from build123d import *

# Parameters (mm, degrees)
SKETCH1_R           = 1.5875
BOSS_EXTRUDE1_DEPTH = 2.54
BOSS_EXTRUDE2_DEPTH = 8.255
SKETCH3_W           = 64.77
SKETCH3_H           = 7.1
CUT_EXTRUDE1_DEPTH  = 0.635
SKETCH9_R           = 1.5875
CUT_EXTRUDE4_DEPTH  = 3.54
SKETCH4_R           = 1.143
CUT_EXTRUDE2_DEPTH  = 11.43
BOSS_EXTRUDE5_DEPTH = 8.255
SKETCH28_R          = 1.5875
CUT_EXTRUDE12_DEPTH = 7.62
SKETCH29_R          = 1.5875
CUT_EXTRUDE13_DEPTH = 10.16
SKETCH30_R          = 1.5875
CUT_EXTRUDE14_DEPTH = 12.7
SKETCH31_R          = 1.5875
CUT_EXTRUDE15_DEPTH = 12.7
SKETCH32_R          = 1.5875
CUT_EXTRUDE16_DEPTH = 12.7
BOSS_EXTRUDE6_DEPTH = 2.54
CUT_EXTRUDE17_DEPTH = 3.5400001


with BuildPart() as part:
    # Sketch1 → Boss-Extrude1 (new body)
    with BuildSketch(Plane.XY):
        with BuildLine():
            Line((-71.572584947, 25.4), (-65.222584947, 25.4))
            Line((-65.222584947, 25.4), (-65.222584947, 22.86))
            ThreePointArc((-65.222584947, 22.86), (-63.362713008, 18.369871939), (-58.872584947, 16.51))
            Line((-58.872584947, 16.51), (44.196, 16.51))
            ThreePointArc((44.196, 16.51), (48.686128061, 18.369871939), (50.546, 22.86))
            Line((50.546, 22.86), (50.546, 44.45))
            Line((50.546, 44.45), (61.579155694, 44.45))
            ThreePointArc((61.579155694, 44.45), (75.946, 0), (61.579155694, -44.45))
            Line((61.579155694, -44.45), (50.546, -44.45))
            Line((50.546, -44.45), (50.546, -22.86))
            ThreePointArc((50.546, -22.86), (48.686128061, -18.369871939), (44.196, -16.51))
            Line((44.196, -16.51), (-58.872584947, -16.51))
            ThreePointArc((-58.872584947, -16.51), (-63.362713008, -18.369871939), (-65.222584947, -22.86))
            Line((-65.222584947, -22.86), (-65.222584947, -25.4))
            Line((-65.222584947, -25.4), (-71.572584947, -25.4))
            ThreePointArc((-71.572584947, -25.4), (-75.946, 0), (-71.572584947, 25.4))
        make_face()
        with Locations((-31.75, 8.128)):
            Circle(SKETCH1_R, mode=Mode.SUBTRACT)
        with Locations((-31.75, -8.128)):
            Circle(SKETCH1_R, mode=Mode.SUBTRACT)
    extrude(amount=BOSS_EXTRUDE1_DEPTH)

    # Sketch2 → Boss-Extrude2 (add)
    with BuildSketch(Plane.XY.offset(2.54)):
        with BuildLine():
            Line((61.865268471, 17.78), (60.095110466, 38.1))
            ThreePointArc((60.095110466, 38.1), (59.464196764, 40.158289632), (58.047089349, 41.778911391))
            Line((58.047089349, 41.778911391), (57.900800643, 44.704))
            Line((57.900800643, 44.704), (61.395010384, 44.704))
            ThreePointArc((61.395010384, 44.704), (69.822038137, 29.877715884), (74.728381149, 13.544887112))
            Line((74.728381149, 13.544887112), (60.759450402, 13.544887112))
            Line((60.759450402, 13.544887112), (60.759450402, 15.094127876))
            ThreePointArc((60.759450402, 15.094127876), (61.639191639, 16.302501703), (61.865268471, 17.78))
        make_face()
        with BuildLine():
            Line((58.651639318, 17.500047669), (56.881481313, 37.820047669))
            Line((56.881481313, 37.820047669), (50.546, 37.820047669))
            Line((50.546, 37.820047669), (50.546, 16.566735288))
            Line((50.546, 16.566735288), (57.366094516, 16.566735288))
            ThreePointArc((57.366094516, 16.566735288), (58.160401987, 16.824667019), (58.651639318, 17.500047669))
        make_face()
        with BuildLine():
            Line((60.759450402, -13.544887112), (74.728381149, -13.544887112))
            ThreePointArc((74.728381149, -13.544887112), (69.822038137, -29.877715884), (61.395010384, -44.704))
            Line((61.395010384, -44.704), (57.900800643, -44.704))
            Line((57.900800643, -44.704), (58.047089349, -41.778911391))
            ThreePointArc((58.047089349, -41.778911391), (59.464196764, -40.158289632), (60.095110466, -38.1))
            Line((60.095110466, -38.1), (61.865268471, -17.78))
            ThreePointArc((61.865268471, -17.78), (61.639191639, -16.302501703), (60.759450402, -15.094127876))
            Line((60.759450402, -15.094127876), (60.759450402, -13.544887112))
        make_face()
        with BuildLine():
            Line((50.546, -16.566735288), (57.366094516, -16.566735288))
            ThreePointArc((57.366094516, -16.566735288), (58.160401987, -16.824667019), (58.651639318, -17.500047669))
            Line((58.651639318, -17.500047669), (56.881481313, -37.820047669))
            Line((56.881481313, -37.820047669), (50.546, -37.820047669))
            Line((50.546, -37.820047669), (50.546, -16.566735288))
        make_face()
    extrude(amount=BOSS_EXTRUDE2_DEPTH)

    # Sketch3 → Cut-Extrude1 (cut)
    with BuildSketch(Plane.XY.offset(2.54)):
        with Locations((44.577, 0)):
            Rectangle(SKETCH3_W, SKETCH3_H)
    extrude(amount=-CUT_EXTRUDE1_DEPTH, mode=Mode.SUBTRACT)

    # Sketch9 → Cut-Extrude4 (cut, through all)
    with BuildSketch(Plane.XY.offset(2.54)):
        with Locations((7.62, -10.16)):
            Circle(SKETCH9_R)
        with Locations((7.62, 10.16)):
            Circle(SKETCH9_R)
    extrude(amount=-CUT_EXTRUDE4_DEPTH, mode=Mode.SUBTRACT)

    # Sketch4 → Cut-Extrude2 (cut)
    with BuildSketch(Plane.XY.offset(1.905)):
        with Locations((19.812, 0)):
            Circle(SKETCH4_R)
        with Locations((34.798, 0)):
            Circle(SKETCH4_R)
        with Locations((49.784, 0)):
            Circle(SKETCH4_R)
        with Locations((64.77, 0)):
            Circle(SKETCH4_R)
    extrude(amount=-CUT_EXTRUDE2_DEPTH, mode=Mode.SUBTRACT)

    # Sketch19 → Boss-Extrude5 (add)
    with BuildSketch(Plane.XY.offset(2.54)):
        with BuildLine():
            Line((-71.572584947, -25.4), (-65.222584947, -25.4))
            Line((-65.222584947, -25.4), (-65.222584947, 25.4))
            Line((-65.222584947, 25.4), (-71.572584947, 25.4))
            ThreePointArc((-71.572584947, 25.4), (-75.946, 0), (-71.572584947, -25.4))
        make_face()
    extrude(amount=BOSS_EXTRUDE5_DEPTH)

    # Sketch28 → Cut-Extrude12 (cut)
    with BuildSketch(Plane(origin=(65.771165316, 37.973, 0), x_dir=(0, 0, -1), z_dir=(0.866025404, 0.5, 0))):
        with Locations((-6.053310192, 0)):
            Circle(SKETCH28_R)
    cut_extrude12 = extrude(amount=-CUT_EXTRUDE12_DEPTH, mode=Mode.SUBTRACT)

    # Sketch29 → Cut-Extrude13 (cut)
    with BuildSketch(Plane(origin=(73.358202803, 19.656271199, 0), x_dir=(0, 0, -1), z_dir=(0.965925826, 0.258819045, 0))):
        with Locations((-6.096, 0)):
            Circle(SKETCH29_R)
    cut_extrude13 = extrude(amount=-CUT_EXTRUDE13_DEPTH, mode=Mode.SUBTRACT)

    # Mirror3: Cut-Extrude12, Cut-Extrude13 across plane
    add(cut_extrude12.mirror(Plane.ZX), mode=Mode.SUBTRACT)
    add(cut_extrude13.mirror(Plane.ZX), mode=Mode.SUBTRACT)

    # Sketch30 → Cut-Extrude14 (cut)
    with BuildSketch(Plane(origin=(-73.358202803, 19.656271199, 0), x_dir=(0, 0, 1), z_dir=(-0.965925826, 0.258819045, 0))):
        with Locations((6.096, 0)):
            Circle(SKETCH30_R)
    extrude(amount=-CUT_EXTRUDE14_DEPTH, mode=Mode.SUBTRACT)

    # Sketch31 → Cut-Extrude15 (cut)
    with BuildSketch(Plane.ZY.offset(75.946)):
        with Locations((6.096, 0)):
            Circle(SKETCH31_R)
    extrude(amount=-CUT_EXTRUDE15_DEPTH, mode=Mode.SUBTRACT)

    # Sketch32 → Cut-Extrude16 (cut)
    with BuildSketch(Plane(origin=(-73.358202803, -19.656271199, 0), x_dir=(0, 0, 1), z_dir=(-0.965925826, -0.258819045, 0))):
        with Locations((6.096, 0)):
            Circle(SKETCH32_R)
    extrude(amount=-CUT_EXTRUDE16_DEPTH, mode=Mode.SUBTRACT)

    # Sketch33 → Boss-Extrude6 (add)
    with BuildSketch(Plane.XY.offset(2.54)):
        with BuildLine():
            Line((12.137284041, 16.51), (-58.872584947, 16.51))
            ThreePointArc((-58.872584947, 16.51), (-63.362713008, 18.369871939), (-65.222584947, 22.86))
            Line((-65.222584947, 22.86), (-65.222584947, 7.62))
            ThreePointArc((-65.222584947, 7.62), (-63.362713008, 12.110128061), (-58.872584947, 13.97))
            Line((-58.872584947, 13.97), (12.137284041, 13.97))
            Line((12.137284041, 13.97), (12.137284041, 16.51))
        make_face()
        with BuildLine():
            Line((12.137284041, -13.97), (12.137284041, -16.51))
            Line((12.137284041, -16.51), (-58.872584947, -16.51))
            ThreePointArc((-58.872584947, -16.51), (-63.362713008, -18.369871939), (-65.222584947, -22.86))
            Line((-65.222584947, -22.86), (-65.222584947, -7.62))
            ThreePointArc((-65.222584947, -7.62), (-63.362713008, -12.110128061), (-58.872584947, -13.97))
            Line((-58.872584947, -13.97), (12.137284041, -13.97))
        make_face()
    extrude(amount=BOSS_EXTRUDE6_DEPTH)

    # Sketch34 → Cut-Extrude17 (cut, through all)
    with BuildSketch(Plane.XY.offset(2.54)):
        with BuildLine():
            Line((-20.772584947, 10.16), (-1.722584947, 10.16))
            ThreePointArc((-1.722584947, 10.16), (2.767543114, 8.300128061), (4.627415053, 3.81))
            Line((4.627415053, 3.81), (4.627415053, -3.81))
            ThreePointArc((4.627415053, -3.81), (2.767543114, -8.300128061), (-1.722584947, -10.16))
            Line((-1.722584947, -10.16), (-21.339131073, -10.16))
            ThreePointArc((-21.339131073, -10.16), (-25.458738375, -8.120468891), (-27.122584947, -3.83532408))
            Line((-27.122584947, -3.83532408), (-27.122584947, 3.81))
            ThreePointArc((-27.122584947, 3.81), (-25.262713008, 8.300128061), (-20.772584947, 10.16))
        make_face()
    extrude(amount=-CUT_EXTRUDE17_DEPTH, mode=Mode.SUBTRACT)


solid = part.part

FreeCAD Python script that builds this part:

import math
import FreeCAD as App
import Part
import Sketcher
Q = App.Units.Quantity

doc = App.newDocument("Part")
body = doc.addObject("PartDesign::Body", "Body")

# Sketch on XY plane
sketch1 = body.newObject("Sketcher::SketchObject", "Sketch")
sketch1.AttachmentSupport = (doc.getObject("XY_Plane"), [""])
sketch1.MapMode = "FlatFace"
sketch1.addGeometry(Part.LineSegment(App.Vector(-65.222585, 25.4, 0), App.Vector(-71.572585, 25.4, 0)), False)
sketch1.addGeometry(Part.ArcOfCircle(Part.Circle(App.Vector(0, 0, 0), App.Vector(0, 0, 1), 75.946), math.radians(160.461016), math.radians(199.538984)), False)
sketch1.addGeometry(Part.LineSegment(App.Vector(-71.572585, -25.4, 0), App.Vector(-65.222585, -25.4, 0)), False)
sketch1.addGeometry(Part.LineSegment(App.Vector(-65.222585, -25.4, 0), App.Vector(-65.222585, -22.86, 0)), False)
sketch1.addGeometry(Part.ArcOfCircle(Part.Circle(App.Vector(-58.872585, -22.86, 0), App.Vector(0, 0, 1), 6.35), math.radians(90), math.radians(180)), False)
sketch1.addGeometry(Part.LineSegment(App.Vector(-58.872585, -16.51, 0), App.Vector(44.196, -16.51, 0)), False)
sketch1.addGeometry(Part.ArcOfCircle(Part.Circle(App.Vector(44.196, -22.86, 0), App.Vector(0, 0, 1), 6.35), math.radians(0), math.radians(90)), False)
sketch1.addGeometry(Part.LineSegment(App.Vector(50.546, -22.86, 0), App.Vector(50.546, -44.45, 0)), False)
sketch1.addGeometry(Part.LineSegment(App.Vector(50.546, -44.45, 0), App.Vector(61.579156, -44.45, 0)), False)
sketch1.addGeometry(Part.ArcOfCircle(Part.Circle(App.Vector(0, 0, 0), App.Vector(0, 0, 1), 75.946), math.radians(-35.823076), math.radians(35.823076)), False)
sketch1.addGeometry(Part.LineSegment(App.Vector(61.579156, 44.45, 0), App.Vector(50.546, 44.45, 0)), False)
sketch1.addGeometry(Part.LineSegment(App.Vector(50.546, 44.45, 0), App.Vector(50.546, 22.86, 0)), False)
sketch1.addGeometry(Part.ArcOfCircle(Part.Circle(App.Vector(44.196, 22.86, 0), App.Vector(0, 0, 1), 6.35), math.radians(-90), math.radians(0)), False)
sketch1.addGeometry(Part.LineSegment(App.Vector(44.196, 16.51, 0), App.Vector(-58.872585, 16.51, 0)), False)
sketch1.addGeometry(Part.ArcOfCircle(Part.Circle(App.Vector(-58.872585, 22.86, 0), App.Vector(0, 0, 1), 6.35), math.radians(180), math.radians(270)), False)
sketch1.addGeometry(Part.LineSegment(App.Vector(-65.222585, 22.86, 0), App.Vector(-65.222585, 25.4, 0)), False)
sketch1.addGeometry(Part.Circle(App.Vector(-31.75, -8.128, 0), App.Vector(0, 0, 1), 1.5875), False)
sketch1.addGeometry(Part.Circle(App.Vector(-31.75, 8.128, 0), App.Vector(0, 0, 1), 1.5875), False)
sketch1.addConstraint(Sketcher.Constraint("Coincident", 0, 2, 1, 1))
sketch1.addConstraint(Sketcher.Constraint("Coincident", 1, 2, 2, 1))
sketch1.addConstraint(Sketcher.Constraint("Coincident", 2, 2, 3, 1))
sketch1.addConstraint(Sketcher.Constraint("Tangent", 3, 2, 4, 2))
sketch1.addConstraint(Sketcher.Constraint("Tangent", 4, 1, 5, 1))
sketch1.addConstraint(Sketcher.Constraint("Tangent", 5, 2, 6, 2))
sketch1.addConstraint(Sketcher.Constraint("Tangent", 6, 1, 7, 1))
sketch1.addConstraint(Sketcher.Constraint("Coincident", 7, 2, 8, 1))
sketch1.addConstraint(Sketcher.Constraint("Coincident", 8, 2, 9, 1))
sketch1.addConstraint(Sketcher.Constraint("Coincident", 9, 2, 10, 1))
sketch1.addConstraint(Sketcher.Constraint("Coincident", 10, 2, 11, 1))
sketch1.addConstraint(Sketcher.Constraint("Tangent", 11, 2, 12, 2))
sketch1.addConstraint(Sketcher.Constraint("Tangent", 12, 1, 13, 1))
sketch1.addConstraint(Sketcher.Constraint("Tangent", 13, 2, 14, 2))
sketch1.addConstraint(Sketcher.Constraint("Tangent", 14, 1, 15, 1))
sketch1.addConstraint(Sketcher.Constraint("Coincident", 15, 2, 0, 1))
sketch1.addConstraint(Sketcher.Constraint("Horizontal", 0))
sketch1.addConstraint(Sketcher.Constraint("Horizontal", 2))
sketch1.addConstraint(Sketcher.Constraint("Vertical", 3))
sketch1.addConstraint(Sketcher.Constraint("Horizontal", 5))
sketch1.addConstraint(Sketcher.Constraint("Vertical", 7))
sketch1.addConstraint(Sketcher.Constraint("Horizontal", 8))
sketch1.addConstraint(Sketcher.Constraint("Horizontal", 10))
sketch1.addConstraint(Sketcher.Constraint("Vertical", 11))
sketch1.addConstraint(Sketcher.Constraint("Horizontal", 13))
sketch1.addConstraint(Sketcher.Constraint("Vertical", 15))
sketch1.addConstraint(Sketcher.Constraint("Coincident", 1, 3, -1, 1))
sketch1.addConstraint(Sketcher.Constraint("Coincident", 9, 3, -1, 1))
sketch1.addConstraint(Sketcher.Constraint("Equal", 4, 6))
sketch1.addConstraint(Sketcher.Constraint("Equal", 1, 9))
sketch1.addConstraint(Sketcher.Constraint("Equal", 6, 12))
sketch1.addConstraint(Sketcher.Constraint("Equal", 12, 14))
sketch1.addConstraint(Sketcher.Constraint("Equal", 16, 17))
sketch1.addConstraint(Sketcher.Constraint("Symmetric", 6, 3, 12, 3, -1))
sketch1.addConstraint(Sketcher.Constraint("Symmetric", 16, 3, 17, 3, -1))
sketch1.addConstraint(Sketcher.Constraint("Symmetric", 2, 2, 15, 2, -1))
sketch1.addConstraint(Sketcher.Constraint("Vertical", 8, 2, 9, 2))
sketch1.addConstraint(Sketcher.Constraint("Radius", 1, Q("2.99 in")))
sketch1.addConstraint(Sketcher.Constraint("Radius", 4, Q("0.25 in")))
sketch1.addConstraint(Sketcher.Constraint("Diameter", 16, Q("0.125 in")))
sketch1.addConstraint(Sketcher.Constraint("DistanceY", 3, 1, 3, 2, Q("0.1 in")))
sketch1.addConstraint(Sketcher.Constraint("DistanceY", -1, 1, 0, 2, Q("1 in")))
sketch1.addConstraint(Sketcher.Constraint("DistanceX", 0, 2, 0, 1, Q("0.25 in")))
sketch1.addConstraint(Sketcher.Constraint("DistanceY", 7, 2, 7, 1, Q("0.85 in")))
sketch1.addConstraint(Sketcher.Constraint("DistanceX", -1, 1, 6, 3, Q("1.74 in")))
sketch1.addConstraint(Sketcher.Constraint("DistanceX", 16, 3, -1, 1, Q("1.25 in")))
sketch1.addConstraint(Sketcher.Constraint("DistanceY", 16, 3, -1, 1, Q("0.32 in")))
pad1 = body.newObject("PartDesign::Pad", "Pad")
pad1.Profile = sketch1
pad1.Length = Q("0.1 in")

# Sketch on XY plane
sketch2 = body.newObject("Sketcher::SketchObject", "Sketch001")
sketch2.AttachmentSupport = (doc.getObject("XY_Plane"), [""])
sketch2.MapMode = "FlatFace"
sketch2.AttachmentOffset = App.Placement(App.Vector(0, 0, 0.1 * 25.4), App.Rotation())
sketch2.addGeometry(Part.LineSegment(App.Vector(60.09511, 38.1, 0), App.Vector(61.865268, 17.78, 0)), False)
sketch2.addGeometry(Part.ArcOfCircle(Part.Circle(App.Vector(58.716749, 17.50572, 0), App.Vector(0, 0, 1), 3.160443), math.radians(-49.734254), math.radians(4.9787)), False)
sketch2.addGeometry(Part.LineSegment(App.Vector(60.75945, 15.094128, 0), App.Vector(60.75945, 13.544887, 0)), False)
sketch2.addGeometry(Part.LineSegment(App.Vector(60.75945, 13.544887, 0), App.Vector(74.728381, 13.544887, 0)), False)
sketch2.addGeometry(Part.ArcOfCircle(Part.Circle(App.Vector(0, 0, 0), App.Vector(0, 0, 1), 75.946), math.radians(10.273604), math.radians(36.059761)), False)
sketch2.addGeometry(Part.LineSegment(App.Vector(61.39501, 44.704, 0), App.Vector(57.900801, 44.704, 0)), False)
sketch2.addGeometry(Part.LineSegment(App.Vector(57.900801, 44.704, 0), App.Vector(58.047089, 41.778911, 0)), False)
sketch2.addGeometry(Part.ArcOfCircle(Part.Circle(App.Vector(54.963878, 37.652997, 0), App.Vector(0, 0, 1), 5.150666), math.radians(4.9787), math.radians(53.229987)), False)
sketch2.addGeometry(Part.LineSegment(App.Vector(58.651639, 17.500048, 0), App.Vector(56.881481, 37.820048, 0)), False)
sketch2.addGeometry(Part.LineSegment(App.Vector(56.881481, 37.820048, 0), App.Vector(50.546, 37.820048, 0)), False)
sketch2.addGeometry(Part.LineSegment(App.Vector(50.546, 37.820048, 0), App.Vector(50.546, 16.566735, 0)), False)
sketch2.addGeometry(Part.LineSegment(App.Vector(50.546, 16.566735, 0), App.Vector(57.366095, 16.566735, 0)), False)
sketch2.addGeometry(Part.ArcOfCircle(Part.Circle(App.Vector(57.366095, 17.918746, 0), App.Vector(0, 0, 1), 1.352011), math.radians(-90), math.radians(-18.040301)), False)
sketch2.addGeometry(Part.LineSegment(App.Vector(74.728381, -13.544887, 0), App.Vector(60.75945, -13.544887, 0)), False)
sketch2.addGeometry(Part.LineSegment(App.Vector(60.75945, -13.544887, 0), App.Vector(60.75945, -15.094128, 0)), False)
sketch2.addGeometry(Part.ArcOfCircle(Part.Circle(App.Vector(58.716749, -17.50572, 0), App.Vector(0, 0, 1), 3.160443), math.radians(-4.9787), math.radians(49.734254)), False)
sketch2.addGeometry(Part.LineSegment(App.Vector(61.865268, -17.78, 0), App.Vector(60.09511, -38.1, 0)), False)
sketch2.addGeometry(Part.ArcOfCircle(Part.Circle(App.Vector(54.963878, -37.652997, 0), App.Vector(0, 0, 1), 5.150666), math.radians(-53.229987), math.radians(-4.9787)), False)
sketch2.addGeometry(Part.LineSegment(App.Vector(58.047089, -41.778911, 0), App.Vector(57.900801, -44.704, 0)), False)
sketch2.addGeometry(Part.LineSegment(App.Vector(57.900801, -44.704, 0), App.Vector(61.39501, -44.704, 0)), False)
sketch2.addGeometry(Part.ArcOfCircle(Part.Circle(App.Vector(0, 0, 0), App.Vector(0, 0, 1), 75.946), math.radians(-36.059761), math.radians(-10.273604)), False)
sketch2.addGeometry(Part.LineSegment(App.Vector(57.366095, -16.566735, 0), App.Vector(50.546, -16.566735, 0)), False)
sketch2.addGeometry(Part.LineSegment(App.Vector(50.546, -16.566735, 0), App.Vector(50.546, -37.820048, 0)), False)
sketch2.addGeometry(Part.LineSegment(App.Vector(50.546, -37.820048, 0), App.Vector(56.881481, -37.820048, 0)), False)
sketch2.addGeometry(Part.LineSegment(App.Vector(56.881481, -37.820048, 0), App.Vector(58.651639, -17.500048, 0)), False)
sketch2.addGeometry(Part.ArcOfCircle(Part.Circle(App.Vector(57.366095, -17.918746, 0), App.Vector(0, 0, 1), 1.352011), math.radians(18.040301), math.radians(90)), False)
sketch2.addConstraint(Sketcher.Constraint("Tangent", 0, 2, 1, 2))
sketch2.addConstraint(Sketcher.Constraint("Coincident", 1, 1, 2, 1))
sketch2.addConstraint(Sketcher.Constraint("Coincident", 2, 2, 3, 1))
sketch2.addConstraint(Sketcher.Constraint("Coincident", 3, 2, 4, 1))
sketch2.addConstraint(Sketcher.Constraint("Coincident", 4, 2, 5, 1))
sketch2.addConstraint(Sketcher.Constraint("Coincident", 5, 2, 6, 1))
sketch2.addConstraint(Sketcher.Constraint("Coincident", 6, 2, 7, 2))
sketch2.addConstraint(Sketcher.Constraint("Tangent", 7, 1, 0, 1))
sketch2.addConstraint(Sketcher.Constraint("Coincident", 8, 2, 9, 1))
sketch2.addConstraint(Sketcher.Constraint("Coincident", 9, 2, 10, 1))
sketch2.addConstraint(Sketcher.Constraint("Coincident", 10, 2, 11, 1))
sketch2.addConstraint(Sketcher.Constraint("Tangent", 11, 2, 12, 1))
sketch2.addConstraint(Sketcher.Constraint("Coincident", 12, 2, 8, 1))
sketch2.addConstraint(Sketcher.Constraint("Coincident", 13, 2, 14, 1))
sketch2.addConstraint(Sketcher.Constraint("Coincident", 14, 2, 15, 2))
sketch2.addConstraint(Sketcher.Constraint("Tangent", 15, 1, 16, 1))
sketch2.addConstraint(Sketcher.Constraint("Tangent", 16, 2, 17, 2))
sketch2.addConstraint(Sketcher.Constraint("Coincident", 17, 1, 18, 1))
sketch2.addConstraint(Sketcher.Constraint("Coincident", 18, 2, 19, 1))
sketch2.addConstraint(Sketcher.Constraint("Coincident", 19, 2, 20, 1))
sketch2.addConstraint(Sketcher.Constraint("Coincident", 20, 2, 13, 1))
sketch2.addConstraint(Sketcher.Constraint("Coincident", 21, 2, 22, 1))
sketch2.addConstraint(Sketcher.Constraint("Coincident", 22, 2, 23, 1))
sketch2.addConstraint(Sketcher.Constraint("Coincident", 23, 2, 24, 1))
sketch2.addConstraint(Sketcher.Constraint("Coincident", 24, 2, 25, 1))
sketch2.addConstraint(Sketcher.Constraint("Tangent", 25, 2, 21, 1))
sketch2.addConstraint(Sketcher.Constraint("Vertical", 2))
sketch2.addConstraint(Sketcher.Constraint("Horizontal", 3))
sketch2.addConstraint(Sketcher.Constraint("Horizontal", 5))
sketch2.addConstraint(Sketcher.Constraint("Horizontal", 9))
sketch2.addConstraint(Sketcher.Constraint("Vertical", 10))
sketch2.addConstraint(Sketcher.Constraint("Horizontal", 11))
sketch2.addConstraint(Sketcher.Constraint("Horizontal", 13))
sketch2.addConstraint(Sketcher.Constraint("Vertical", 14))
sketch2.addConstraint(Sketcher.Constraint("Horizontal", 19))
sketch2.addConstraint(Sketcher.Constraint("Horizontal", 21))
sketch2.addConstraint(Sketcher.Constraint("Vertical", 22))
sketch2.addConstraint(Sketcher.Constraint("Horizontal", 23))
sketch2.addConstraint(Sketcher.Constraint("Coincident", 4, 3, -1, 1))
sketch2.addConstraint(Sketcher.Constraint("Coincident", 20, 3, -1, 1))
sketch2.addConstraint(Sketcher.Constraint("Equal", 1, 15))
sketch2.addConstraint(Sketcher.Constraint("Equal", 7, 17))
sketch2.addConstraint(Sketcher.Constraint("Equal", 4, 20))
sketch2.addConstraint(Sketcher.Constraint("Equal", 12, 25))
sketch2.addConstraint(Sketcher.Constraint("Symmetric", 1, 3, 15, 3, -1))
sketch2.addConstraint(Sketcher.Constraint("Symmetric", 7, 3, 17, 3, -1))
sketch2.addConstraint(Sketcher.Constraint("Symmetric", 12, 3, 25, 3, -1))
sketch2.addConstraint(Sketcher.Constraint("Symmetric", 2, 2, 13, 2, -1))
sketch2.addConstraint(Sketcher.Constraint("Symmetric", 5, 2, 18, 2, -1))
sketch2.addConstraint(Sketcher.Constraint("Symmetric", 9, 2, 22, 2, -1))
sketch2.addConstraint(Sketcher.Constraint("Parallel", 0, 8))
sketch2.addConstraint(Sketcher.Constraint("Parallel", 16, 24))
sketch2.addConstraint(Sketcher.Constraint("Vertical", 6, 2, 17, 1))
sketch2.addConstraint(Sketcher.Constraint("Vertical", 8, 2, 23, 2))
sketch2.addConstraint(Sketcher.Constraint("Equal", 0, 8))
sketch2.addConstraint(Sketcher.Constraint("Radius", 4, Q("2.99 in")))
sketch2.addConstraint(Sketcher.Constraint("DistanceY", -1, 1, 0, 2, Q("0.7 in")))
sketch2.addConstraint(Sketcher.Constraint("DistanceY", -1, 1, 7, 1, Q("1.5 in")))
sketch2.addConstraint(Sketcher.Constraint("DistanceY", -1, 1, 4, 2, Q("1.76 in")))
sketch2.addConstraint(Sketcher.Constraint("DistanceX", -1, 1, 9, 2, Q("1.99 in")))
sketch2.addConstraint(Sketcher.Constraint("Radius", 12, Q("1.352011 mm")))
sketch2.addConstraint(Sketcher.Constraint("Radius", 1, Q("3.160443 mm")))
sketch2.addConstraint(Sketcher.Constraint("Radius", 7, Q("5.150666 mm")))
sketch2.addConstraint(Sketcher.Constraint("DistanceY", 1, 3, 7, 3, Q("0.7931999 in")))
sketch2.addConstraint(Sketcher.Constraint("DistanceX", 3, 1, 3, 2, Q("13.968931 mm")))
sketch2.addConstraint(Sketcher.Constraint("DistanceX", 5, 2, 5, 1, Q("3.49421 mm")))
sketch2.addConstraint(Sketcher.Constraint("DistanceX", 9, 2, 9, 1, Q("6.335481 mm")))
sketch2.addConstraint(Sketcher.Constraint("DistanceY", 2, 2, 2, 1, Q("1.549241 mm")))
sketch2.addConstraint(Sketcher.Constraint("DistanceX", 1, 3, 1, 1, Q("2.042701 mm")))
sketch2.addConstraint(Sketcher.Constraint("DistanceY", 12, 2, 12, 3, Q("0.418699 mm")))
sketch2.addConstraint(Sketcher.Constraint("DistanceX", -1, 1, 6, 2, Q("58.047089 mm")))
sketch2.addConstraint(Sketcher.Constraint("DistanceY", 12, 3, 7, 3, Q("19.734251 mm")))
pad2 = body.newObject("PartDesign::Pad", "Pad001")
pad2.Profile = sketch2
pad2.Length = Q("0.325 in")

# Sketch on XY plane
sketch3 = body.newObject("Sketcher::SketchObject", "Sketch002")
sketch3.AttachmentSupport = (doc.getObject("XY_Plane"), [""])
sketch3.MapMode = "FlatFace"
sketch3.AttachmentOffset = App.Placement(App.Vector(0, 0, 0.1 * 25.4), App.Rotation())
sketch3.addGeometry(Part.LineSegment(App.Vector(12.192, 3.55, 0), App.Vector(12.192, -3.55, 0)), False)
sketch3.addGeometry(Part.LineSegment(App.Vector(12.192, -3.55, 0), App.Vector(76.962, -3.55, 0)), False)
sketch3.addGeometry(Part.LineSegment(App.Vector(76.962, -3.55, 0), App.Vector(76.962, 3.55, 0)), False)
sketch3.addGeometry(Part.LineSegment(App.Vector(76.962, 3.55, 0), App.Vector(12.192, 3.55, 0)), False)
sketch3.addConstraint(Sketcher.Constraint("Coincident", 0, 2, 1, 1))
sketch3.addConstraint(Sketcher.Constraint("Coincident", 1, 2, 2, 1))
sketch3.addConstraint(Sketcher.Constraint("Coincident", 2, 2, 3, 1))
sketch3.addConstraint(Sketcher.Constraint("Coincident", 3, 2, 0, 1))
sketch3.addConstraint(Sketcher.Constraint("Vertical", 0))
sketch3.addConstraint(Sketcher.Constraint("Horizontal", 1))
sketch3.addConstraint(Sketcher.Constraint("Vertical", 2))
sketch3.addConstraint(Sketcher.Constraint("Horizontal", 3))
sketch3.addConstraint(Sketcher.Constraint("DistanceX", 1, 1, 1, 2, Q("2.55 in")))
sketch3.addConstraint(Sketcher.Constraint("DistanceX", -1, 1, 0, 2, Q("0.48 in")))
sketch3.addConstraint(Sketcher.Constraint("DistanceY", 0, 2, 0, 1, Q("7.1 mm")))
sketch3.addConstraint(Sketcher.Constraint("DistanceY", 0, 2, -1, 1, Q("3.55 mm")))
pocket1 = body.newObject("PartDesign::Pocket", "Pocket")
pocket1.Profile = sketch3
pocket1.Length = Q("0.025 in")

# Sketch on XY plane
sketch4 = body.newObject("Sketcher::SketchObject", "Sketch003")
sketch4.AttachmentSupport = (doc.getObject("XY_Plane"), [""])
sketch4.MapMode = "FlatFace"
sketch4.AttachmentOffset = App.Placement(App.Vector(0, 0, 0.1 * 25.4), App.Rotation())
sketch4.addGeometry(Part.Circle(App.Vector(7.62, -10.16, 0), App.Vector(0, 0, 1), 1.5875), False)
sketch4.addGeometry(Part.Circle(App.Vector(7.62, 10.16, 0), App.Vector(0, 0, 1), 1.5875), False)
sketch4.addConstraint(Sketcher.Constraint("Equal", 0, 1))
sketch4.addConstraint(Sketcher.Constraint("Symmetric", 0, 3, 1, 3, -1))
sketch4.addConstraint(Sketcher.Constraint("Diameter", 0, Q("0.125 in")))
sketch4.addConstraint(Sketcher.Constraint("DistanceX", -1, 1, 0, 3, Q("0.3 in")))
sketch4.addConstraint(Sketcher.Constraint("DistanceY", 0, 3, -1, 1, Q("0.4 in")))
pocket2 = body.newObject("PartDesign::Pocket", "Pocket001")
pocket2.Profile = sketch4
pocket2.Type = "ThroughAll"

# Sketch on XY plane
sketch5 = body.newObject("Sketcher::SketchObject", "Sketch004")
sketch5.AttachmentSupport = (doc.getObject("XY_Plane"), [""])
sketch5.MapMode = "FlatFace"
sketch5.AttachmentOffset = App.Placement(App.Vector(0, 0, 0.075 * 25.4), App.Rotation())
sketch5.addGeometry(Part.Circle(App.Vector(19.812, 0, 0), App.Vector(0, 0, 1), 1.143), False)
sketch5.addGeometry(Part.Circle(App.Vector(34.798, 0, 0), App.Vector(0, 0, 1), 1.143), False)
sketch5.addGeometry(Part.Circle(App.Vector(49.784, 0, 0), App.Vector(0, 0, 1), 1.143), False)
sketch5.addGeometry(Part.Circle(App.Vector(64.77, 0, 0), App.Vector(0, 0, 1), 1.143), False)
sketch5.addConstraint(Sketcher.Constraint("Equal", 0, 1))
sketch5.addConstraint(Sketcher.Constraint("Equal", 1, 2))
sketch5.addConstraint(Sketcher.Constraint("Equal", 2, 3))
sketch5.addConstraint(Sketcher.Constraint("PointOnObject", 0, 3, -1))
sketch5.addConstraint(Sketcher.Constraint("PointOnObject", 1, 3, -1))
sketch5.addConstraint(Sketcher.Constraint("PointOnObject", 2, 3, -1))
sketch5.addConstraint(Sketcher.Constraint("PointOnObject", 3, 3, -1))
sketch5.addConstraint(Sketcher.Constraint("Diameter", 0, Q("0.09 in")))
sketch5.addConstraint(Sketcher.Constraint("DistanceX", -1, 1, 0, 3, Q("0.78 in")))
sketch5.addConstraint(Sketcher.Constraint("DistanceX", -1, 1, 1, 3, Q("1.37 in")))
sketch5.addConstraint(Sketcher.Constraint("DistanceX", -1, 1, 2, 3, Q("1.96 in")))
sketch5.addConstraint(Sketcher.Constraint("DistanceX", -1, 1, 3, 3, Q("2.55 in")))
pocket3 = body.newObject("PartDesign::Pocket", "Pocket002")
pocket3.Profile = sketch5
pocket3.Length = Q("0.45 in")

# Sketch on XY plane
sketch6 = body.newObject("Sketcher::SketchObject", "Sketch005")
sketch6.AttachmentSupport = (doc.getObject("XY_Plane"), [""])
sketch6.MapMode = "FlatFace"
sketch6.AttachmentOffset = App.Placement(App.Vector(0, 0, 0.1 * 25.4), App.Rotation())
sketch6.addGeometry(Part.LineSegment(App.Vector(-71.572585, -25.4, 0), App.Vector(-65.222585, -25.4, 0)), False)
sketch6.addGeometry(Part.LineSegment(App.Vector(-65.222585, -25.4, 0), App.Vector(-65.222585, 25.4, 0)), False)
sketch6.addGeometry(Part.LineSegment(App.Vector(-65.222585, 25.4, 0), App.Vector(-71.572585, 25.4, 0)), False)
sketch6.addGeometry(Part.ArcOfCircle(Part.Circle(App.Vector(0, 0, 0), App.Vector(0, 0, 1), 75.946), math.radians(160.461016), math.radians(199.538984)), False)
sketch6.addConstraint(Sketcher.Constraint("Coincident", 0, 2, 1, 1))
sketch6.addConstraint(Sketcher.Constraint("Coincident", 1, 2, 2, 1))
sketch6.addConstraint(Sketcher.Constraint("Coincident", 2, 2, 3, 1))
sketch6.addConstraint(Sketcher.Constraint("Coincident", 3, 2, 0, 1))
sketch6.addConstraint(Sketcher.Constraint("Horizontal", 0))
sketch6.addConstraint(Sketcher.Constraint("Vertical", 1))
sketch6.addConstraint(Sketcher.Constraint("Horizontal", 2))
sketch6.addConstraint(Sketcher.Constraint("Coincident", 3, 3, -1, 1))
sketch6.addConstraint(Sketcher.Constraint("Vertical", 2, 2, 3, 2))
sketch6.addConstraint(Sketcher.Constraint("DistanceY", 1, 1, 1, 2, Q("2 in")))
sketch6.addConstraint(Sketcher.Constraint("Radius", 3, Q("2.99 in")))
sketch6.addConstraint(Sketcher.Constraint("DistanceX", 0, 1, 0, 2, Q("0.25 in")))
pad3 = body.newObject("PartDesign::Pad", "Pad002")
pad3.Profile = sketch6
pad3.Length = Q("0.325 in")

# Sketch on an angled plane
sketch7 = body.newObject("Sketcher::SketchObject", "Sketch006")
sketch7.Placement = App.Placement(App.Vector(65.771165, 37.973, 0), App.Rotation(App.Vector(0, 0, -1), App.Vector(-0.5, 0.866025404, 0), App.Vector(0.866025404, 0.5, 0), "ZXY"))
sketch7.addGeometry(Part.Circle(App.Vector(-6.05331, 0, 0), App.Vector(0, 0, 1), 1.5875), False)
sketch7.addConstraint(Sketcher.Constraint("PointOnObject", 0, 3, -1))
sketch7.addConstraint(Sketcher.Constraint("Diameter", 0, Q("0.125 in")))
sketch7.addConstraint(Sketcher.Constraint("DistanceX", 0, 3, -1, 1, Q("6.05331 mm")))
pocket4 = body.newObject("PartDesign::Pocket", "Pocket003")
pocket4.Profile = sketch7
pocket4.Length = Q("0.3 in")

# Sketch on an angled plane
sketch8 = body.newObject("Sketcher::SketchObject", "Sketch007")
sketch8.Placement = App.Placement(App.Vector(73.358203, 19.656271, 0), App.Rotation(App.Vector(0, 0, -1), App.Vector(-0.258819045, 0.965925826, 0), App.Vector(0.965925826, 0.258819045, 0), "ZXY"))
sketch8.addGeometry(Part.Circle(App.Vector(-6.096, 0, 0), App.Vector(0, 0, 1), 1.5875), False)
sketch8.addConstraint(Sketcher.Constraint("PointOnObject", 0, 3, -1))
sketch8.addConstraint(Sketcher.Constraint("Diameter", 0, Q("0.125 in")))
sketch8.addConstraint(Sketcher.Constraint("DistanceX", 0, 3, -1, 1, Q("0.24 in")))
pocket5 = body.newObject("PartDesign::Pocket", "Pocket004")
pocket5.Profile = sketch8
pocket5.Length = Q("0.4 in")
doc.recompute()

mirrored = body.newObject("PartDesign::Mirrored", "Mirrored")
mirrored.Originals = [pocket4, pocket5]
mirrored.MirrorPlane = (doc.getObject("XZ_Plane"), [""])
body.Tip = mirrored

# Sketch on an angled plane
sketch9 = body.newObject("Sketcher::SketchObject", "Sketch008")
sketch9.Placement = App.Placement(App.Vector(-73.358203, 19.656271, 0), App.Rotation(App.Vector(0, 0, 1), App.Vector(0.258819045, 0.965925826, 0), App.Vector(-0.965925826, 0.258819045, 0), "ZXY"))
sketch9.addGeometry(Part.Circle(App.Vector(6.096, 0, 0), App.Vector(0, 0, 1), 1.5875), False)
sketch9.addConstraint(Sketcher.Constraint("PointOnObject", 0, 3, -1))
sketch9.addConstraint(Sketcher.Constraint("Diameter", 0, Q("0.125 in")))
sketch9.addConstraint(Sketcher.Constraint("DistanceX", -1, 1, 0, 3, Q("0.24 in")))
pocket6 = body.newObject("PartDesign::Pocket", "Pocket005")
pocket6.Profile = sketch9
pocket6.Length = Q("0.5 in")

# Sketch on YZ plane
sketch10 = body.newObject("Sketcher::SketchObject", "Sketch009")
sketch10.AttachmentSupport = (doc.getObject("YZ_Plane"), [""])
sketch10.MapMode = "FlatFace"
sketch10.AttachmentOffset = App.Placement(App.Vector(0, 0, -2.99 * 25.4), App.Rotation())
sketch10.addGeometry(Part.Circle(App.Vector(0, 6.096, 0), App.Vector(0, 0, 1), 1.5875), False)
sketch10.addConstraint(Sketcher.Constraint("PointOnObject", 0, 3, -2))
sketch10.addConstraint(Sketcher.Constraint("Diameter", 0, Q("0.125 in")))
sketch10.addConstraint(Sketcher.Constraint("DistanceY", -1, 1, 0, 3, Q("0.24 in")))
pocket7 = body.newObject("PartDesign::Pocket", "Pocket006")
pocket7.Profile = sketch10
pocket7.Length = Q("0.5 in")
pocket7.Reversed = True

# Sketch on an angled plane
sketch11 = body.newObject("Sketcher::SketchObject", "Sketch010")
sketch11.Placement = App.Placement(App.Vector(-73.358203, -19.656271, 0), App.Rotation(App.Vector(0, 0, 1), App.Vector(-0.258819045, 0.965925826, 0), App.Vector(-0.965925826, -0.258819045, 0), "ZXY"))
sketch11.addGeometry(Part.Circle(App.Vector(6.096, 0, 0), App.Vector(0, 0, 1), 1.5875), False)
sketch11.addConstraint(Sketcher.Constraint("PointOnObject", 0, 3, -1))
sketch11.addConstraint(Sketcher.Constraint("Diameter", 0, Q("0.125 in")))
sketch11.addConstraint(Sketcher.Constraint("DistanceX", -1, 1, 0, 3, Q("0.24 in")))
pocket8 = body.newObject("PartDesign::Pocket", "Pocket007")
pocket8.Profile = sketch11
pocket8.Length = Q("0.5 in")

# Sketch on XY plane
sketch12 = body.newObject("Sketcher::SketchObject", "Sketch011")
sketch12.AttachmentSupport = (doc.getObject("XY_Plane"), [""])
sketch12.MapMode = "FlatFace"
sketch12.AttachmentOffset = App.Placement(App.Vector(0, 0, 0.1 * 25.4), App.Rotation())
sketch12.addGeometry(Part.LineSegment(App.Vector(12.137284, 16.51, 0), App.Vector(-58.872585, 16.51, 0)), False)
sketch12.addGeometry(Part.ArcOfCircle(Part.Circle(App.Vector(-58.872585, 22.86, 0), App.Vector(0, 0, 1), 6.35), math.radians(180), math.radians(270)), False)
sketch12.addGeometry(Part.LineSegment(App.Vector(-65.222585, 22.86, 0), App.Vector(-65.222585, 7.62, 0)), False)
sketch12.addGeometry(Part.ArcOfCircle(Part.Circle(App.Vector(-58.872585, 7.62, 0), App.Vector(0, 0, 1), 6.35), math.radians(90), math.radians(180)), False)
sketch12.addGeometry(Part.LineSegment(App.Vector(-58.872585, 13.97, 0), App.Vector(12.137284, 13.97, 0)), False)
sketch12.addGeometry(Part.LineSegment(App.Vector(12.137284, 13.97, 0), App.Vector(12.137284, 16.51, 0)), False)
sketch12.addGeometry(Part.LineSegment(App.Vector(12.137284, -16.51, 0), App.Vector(12.137284, -13.97, 0)), False)
sketch12.addGeometry(Part.LineSegment(App.Vector(12.137284, -13.97, 0), App.Vector(-58.872585, -13.97, 0)), False)
sketch12.addGeometry(Part.ArcOfCircle(Part.Circle(App.Vector(-58.872585, -7.62, 0), App.Vector(0, 0, 1), 6.35), math.radians(180), math.radians(270)), False)
sketch12.addGeometry(Part.LineSegment(App.Vector(-65.222585, -7.62, 0), App.Vector(-65.222585, -22.86, 0)), False)
sketch12.addGeometry(Part.ArcOfCircle(Part.Circle(App.Vector(-58.872585, -22.86, 0), App.Vector(0, 0, 1), 6.35), math.radians(90), math.radians(180)), False)
sketch12.addGeometry(Part.LineSegment(App.Vector(-58.872585, -16.51, 0), App.Vector(12.137284, -16.51, 0)), False)
sketch12.addConstraint(Sketcher.Constraint("Tangent", 0, 2, 1, 2))
sketch12.addConstraint(Sketcher.Constraint("Tangent", 1, 1, 2, 1))
sketch12.addConstraint(Sketcher.Constraint("Tangent", 2, 2, 3, 2))
sketch12.addConstraint(Sketcher.Constraint("Tangent", 3, 1, 4, 1))
sketch12.addConstraint(Sketcher.Constraint("Coincident", 4, 2, 5, 1))
sketch12.addConstraint(Sketcher.Constraint("Coincident", 5, 2, 0, 1))
sketch12.addConstraint(Sketcher.Constraint("Coincident", 6, 2, 7, 1))
sketch12.addConstraint(Sketcher.Constraint("Tangent", 7, 2, 8, 2))
sketch12.addConstraint(Sketcher.Constraint("Tangent", 8, 1, 9, 1))
sketch12.addConstraint(Sketcher.Constraint("Tangent", 9, 2, 10, 2))
sketch12.addConstraint(Sketcher.Constraint("Tangent", 10, 1, 11, 1))
sketch12.addConstraint(Sketcher.Constraint("Coincident", 11, 2, 6, 1))
sketch12.addConstraint(Sketcher.Constraint("Horizontal", 0))
sketch12.addConstraint(Sketcher.Constraint("Vertical", 2))
sketch12.addConstraint(Sketcher.Constraint("Horizontal", 4))
sketch12.addConstraint(Sketcher.Constraint("Vertical", 5))
sketch12.addConstraint(Sketcher.Constraint("Vertical", 6))
sketch12.addConstraint(Sketcher.Constraint("Horizontal", 7))
sketch12.addConstraint(Sketcher.Constraint("Vertical", 9))
sketch12.addConstraint(Sketcher.Constraint("Horizontal", 11))
sketch12.addConstraint(Sketcher.Constraint("Equal", 1, 3))
sketch12.addConstraint(Sketcher.Constraint("Equal", 3, 8))
sketch12.addConstraint(Sketcher.Constraint("Equal", 8, 10))
sketch12.addConstraint(Sketcher.Constraint("Symmetric", 3, 3, 8, 3, -1))
sketch12.addConstraint(Sketcher.Constraint("Symmetric", 5, 2, 11, 2, -1))
sketch12.addConstraint(Sketcher.Constraint("Radius", 1, Q("0.25 in")))
sketch12.addConstraint(Sketcher.Constraint("DistanceY", 2, 2, 2, 1, Q("0.6 in")))
sketch12.addConstraint(Sketcher.Constraint("DistanceY", -1, 1, 1, 3, Q("0.9 in")))
sketch12.addConstraint(Sketcher.Constraint("DistanceX", 0, 2, 0, 1, Q("71.009869 mm")))
sketch12.addConstraint(Sketcher.Constraint("DistanceX", 1, 3, -1, 1, Q("58.872585 mm")))
pad4 = body.newObject("PartDesign::Pad", "Pad003")
pad4.Profile = sketch12
pad4.Length = Q("0.1 in")

# Sketch on XY plane
sketch13 = body.newObject("Sketcher::SketchObject", "Sketch012")
sketch13.AttachmentSupport = (doc.getObject("XY_Plane"), [""])
sketch13.MapMode = "FlatFace"
sketch13.AttachmentOffset = App.Placement(App.Vector(0, 0, 0.1 * 25.4), App.Rotation())
sketch13.addGeometry(Part.LineSegment(App.Vector(-1.722585, 10.16, 0), App.Vector(-20.772585, 10.16, 0)), False)
sketch13.addGeometry(Part.ArcOfCircle(Part.Circle(App.Vector(-20.772585, 3.81, 0), App.Vector(0, 0, 1), 6.35), math.radians(90), math.radians(180)), False)
sketch13.addGeometry(Part.LineSegment(App.Vector(-27.122585, 3.81, 0), App.Vector(-27.122585, -3.835324, 0)), False)
sketch13.addGeometry(Part.ArcOfCircle(Part.Circle(App.Vector(-20.772585, -3.835324, 0), App.Vector(0, 0, 1), 6.35), math.radians(180), math.radians(264.881272)), False)
sketch13.addGeometry(Part.LineSegment(App.Vector(-21.339131, -10.16, 0), App.Vector(-1.722585, -10.16, 0)), False)
sketch13.addGeometry(Part.ArcOfCircle(Part.Circle(App.Vector(-1.722585, -3.81, 0), App.Vector(0, 0, 1), 6.35), math.radians(-90), math.radians(0)), False)
sketch13.addGeometry(Part.LineSegment(App.Vector(4.627415, -3.81, 0), App.Vector(4.627415, 3.81, 0)), False)
sketch13.addGeometry(Part.ArcOfCircle(Part.Circle(App.Vector(-1.722585, 3.81, 0), App.Vector(0, 0, 1), 6.35), math.radians(0), math.radians(90)), False)
sketch13.addConstraint(Sketcher.Constraint("Tangent", 0, 2, 1, 1))
sketch13.addConstraint(Sketcher.Constraint("Tangent", 1, 2, 2, 1))
sketch13.addConstraint(Sketcher.Constraint("Tangent", 2, 2, 3, 1))
sketch13.addConstraint(Sketcher.Constraint("Coincident", 3, 2, 4, 1))
sketch13.addConstraint(Sketcher.Constraint("Tangent", 4, 2, 5, 1))
sketch13.addConstraint(Sketcher.Constraint("Tangent", 5, 2, 6, 1))
sketch13.addConstraint(Sketcher.Constraint("Tangent", 6, 2, 7, 1))
sketch13.addConstraint(Sketcher.Constraint("Tangent", 7, 2, 0, 1))
sketch13.addConstraint(Sketcher.Constraint("Horizontal", 0))
sketch13.addConstraint(Sketcher.Constraint("Vertical", 2))
sketch13.addConstraint(Sketcher.Constraint("Horizontal", 4))
sketch13.addConstraint(Sketcher.Constraint("Vertical", 6))
sketch13.addConstraint(Sketcher.Constraint("Equal", 1, 3))
sketch13.addConstraint(Sketcher.Constraint("Equal", 3, 5))
sketch13.addConstraint(Sketcher.Constraint("Equal", 5, 7))
sketch13.addConstraint(Sketcher.Constraint("Radius", 1, Q("0.25 in")))
sketch13.addConstraint(Sketcher.Constraint("DistanceY", 6, 1, 6, 2, Q("0.3 in")))
sketch13.addConstraint(Sketcher.Constraint("DistanceX", 1, 2, 7, 3, Q("1 in")))
sketch13.addConstraint(Sketcher.Constraint("DistanceY", -1, 1, 0, 2, Q("0.4 in")))
sketch13.addConstraint(Sketcher.Constraint("DistanceX", 4, 1, 4, 2, Q("19.616546 mm")))
sketch13.addConstraint(Sketcher.Constraint("DistanceX", 3, 2, -1, 1, Q("21.339131 mm")))
pocket9 = body.newObject("PartDesign::Pocket", "Pocket008")
pocket9.Profile = sketch13
pocket9.Type = "ThroughAll"

doc.recompute()
